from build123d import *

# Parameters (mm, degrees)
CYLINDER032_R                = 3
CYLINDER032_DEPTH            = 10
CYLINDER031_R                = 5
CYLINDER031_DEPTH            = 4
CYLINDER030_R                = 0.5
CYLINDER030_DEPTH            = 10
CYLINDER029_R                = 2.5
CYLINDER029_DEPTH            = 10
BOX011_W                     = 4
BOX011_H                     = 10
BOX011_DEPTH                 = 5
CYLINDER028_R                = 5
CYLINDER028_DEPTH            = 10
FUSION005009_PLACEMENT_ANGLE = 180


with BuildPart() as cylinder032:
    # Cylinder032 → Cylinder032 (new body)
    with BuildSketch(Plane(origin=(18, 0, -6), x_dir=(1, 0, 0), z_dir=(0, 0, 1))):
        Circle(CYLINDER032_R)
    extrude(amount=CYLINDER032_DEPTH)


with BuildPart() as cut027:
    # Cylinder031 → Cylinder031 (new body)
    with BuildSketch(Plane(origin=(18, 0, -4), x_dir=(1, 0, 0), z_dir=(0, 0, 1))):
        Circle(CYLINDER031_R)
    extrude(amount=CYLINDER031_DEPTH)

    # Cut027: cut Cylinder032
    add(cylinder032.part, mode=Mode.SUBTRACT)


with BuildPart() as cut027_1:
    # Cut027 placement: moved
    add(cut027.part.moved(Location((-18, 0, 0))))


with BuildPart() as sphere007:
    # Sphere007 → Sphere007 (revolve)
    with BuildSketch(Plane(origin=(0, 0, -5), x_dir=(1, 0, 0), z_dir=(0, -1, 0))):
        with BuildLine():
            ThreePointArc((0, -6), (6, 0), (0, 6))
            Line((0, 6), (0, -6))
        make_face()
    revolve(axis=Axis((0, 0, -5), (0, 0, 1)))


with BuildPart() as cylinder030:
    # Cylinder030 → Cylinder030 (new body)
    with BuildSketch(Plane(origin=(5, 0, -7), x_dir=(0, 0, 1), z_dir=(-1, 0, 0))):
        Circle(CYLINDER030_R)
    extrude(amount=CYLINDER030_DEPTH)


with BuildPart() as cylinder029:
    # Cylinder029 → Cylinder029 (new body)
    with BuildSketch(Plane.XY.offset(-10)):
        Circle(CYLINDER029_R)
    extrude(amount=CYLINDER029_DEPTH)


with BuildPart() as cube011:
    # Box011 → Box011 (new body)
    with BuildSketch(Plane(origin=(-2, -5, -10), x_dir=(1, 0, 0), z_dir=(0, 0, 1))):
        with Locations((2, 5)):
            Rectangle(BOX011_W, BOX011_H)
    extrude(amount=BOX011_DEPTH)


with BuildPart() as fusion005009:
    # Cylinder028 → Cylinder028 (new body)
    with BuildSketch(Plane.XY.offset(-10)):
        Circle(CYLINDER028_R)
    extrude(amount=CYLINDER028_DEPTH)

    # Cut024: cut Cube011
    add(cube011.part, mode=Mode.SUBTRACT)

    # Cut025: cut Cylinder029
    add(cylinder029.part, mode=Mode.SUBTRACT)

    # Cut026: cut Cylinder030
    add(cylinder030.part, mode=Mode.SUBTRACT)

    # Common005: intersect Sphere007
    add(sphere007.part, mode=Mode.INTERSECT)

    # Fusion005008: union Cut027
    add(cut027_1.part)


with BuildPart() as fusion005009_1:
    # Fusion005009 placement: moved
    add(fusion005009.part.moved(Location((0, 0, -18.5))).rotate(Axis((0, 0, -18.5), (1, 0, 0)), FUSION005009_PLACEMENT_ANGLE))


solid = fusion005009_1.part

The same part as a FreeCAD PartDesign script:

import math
import FreeCAD as App
import Part
import Sketcher
from FreeCAD import Vector

doc = App.newDocument("Part")
body = doc.addObject("PartDesign::Body", "Body")

sketch1 = doc.addObject("Sketcher::SketchObject", "Sketch")
body.addObject(sketch1)
sketch1.AttachmentSupport = (doc.XY_Plane, [""])
sketch1.MapMode = "FlatFace"
sketch1.AttachmentOffset = App.Placement(Vector(0, 0, -6), App.Rotation())
sketch1.addGeometry(Part.Circle(Vector(18, 0, 0), Vector(0, 0, 1), 3), False)
sketch1.addConstraint(Sketcher.Constraint("PointOnObject", 0, 3, -1))
sketch1.addConstraint(Sketcher.Constraint("Diameter", 0, 6.0))
sketch1.addConstraint(Sketcher.Constraint("DistanceX", -1, 1, 0, 3, 18.0))
pad1 = doc.addObject("PartDesign::Pad", "Pad")
body.addObject(pad1)
pad1.Profile = sketch1
pad1.Length = 10
body2 = doc.addObject("PartDesign::Body", "Body001")

sketch2 = doc.addObject("Sketcher::SketchObject", "Sketch001")
body2.addObject(sketch2)
sketch2.AttachmentSupport = (doc.getObject("XY_Plane001"), [""])
sketch2.MapMode = "FlatFace"
sketch2.AttachmentOffset = App.Placement(Vector(0, 0, -4), App.Rotation())
sketch2.addGeometry(Part.Circle(Vector(18, 0, 0), Vector(0, 0, 1), 5), False)
sketch2.addConstraint(Sketcher.Constraint("PointOnObject", 0, 3, -1))
sketch2.addConstraint(Sketcher.Constraint("Diameter", 0, 10.0))
sketch2.addConstraint(Sketcher.Constraint("DistanceX", -1, 1, 0, 3, 18.0))
pad2 = doc.addObject("PartDesign::Pad", "Pad001")
body2.addObject(pad2)
pad2.Profile = sketch2
pad2.Length = 4
doc.recompute()

boolean = doc.addObject("PartDesign::Boolean", "Boolean")
body2.addObject(boolean)
boolean.Type = "Cut"
boolean.addObjects([body])
body3 = doc.addObject("PartDesign::Body", "Body002")
doc.recompute()

body2.Placement = App.Placement(Vector(-18, 0, 0), App.Rotation(Vector(0, 0, 1), 0))
boolean2 = doc.addObject("PartDesign::Boolean", "Boolean001")
body3.addObject(boolean2)
boolean2.Type = "Fuse"
boolean2.addObjects([body2])
body4 = doc.addObject("PartDesign::Body", "Body003")

sketch3 = doc.addObject("Sketcher::SketchObject", "Sketch002")
body4.addObject(sketch3)
sketch3.AttachmentSupport = (doc.getObject("XZ_Plane003"), [""])
sketch3.MapMode = "FlatFace"
sketch3.addGeometry(Part.ArcOfCircle(Part.Circle(Vector(0, -5, 0), Vector(0, 0, 1), 6), math.radians(-90), math.radians(90)), False)
sketch3.addGeometry(Part.LineSegment(Vector(0, 1, 0), Vector(0, -11, 0)), False)
sketch3.addConstraint(Sketcher.Constraint("Coincident", 0, 1, 1, 2))
sketch3.addConstraint(Sketcher.Constraint("Coincident", 1, 1, 0, 2))
sketch3.addConstraint(Sketcher.Constraint("Vertical", 1))
sketch3.addConstraint(Sketcher.Constraint("PointOnObject", 0, 3, -2))
sketch3.addConstraint(Sketcher.Constraint("PointOnObject", 0, 1, -2))
sketch3.addConstraint(Sketcher.Constraint("Radius", 0, 6.0))
sketch3.addConstraint(Sketcher.Constraint("DistanceY", 0, 3, -1, 1, 5.0))
revolution = doc.addObject("PartDesign::Revolution", "Revolution")
body4.addObject(revolution)
revolution.Profile = sketch3
revolution.ReferenceAxis = (sketch3, ["V_Axis"])
revolution.Angle = 360
body5 = doc.addObject("PartDesign::Body", "Body004")

sketch4 = doc.addObject("Sketcher::SketchObject", "Sketch003")
body5.addObject(sketch4)
sketch4.AttachmentSupport = (doc.getObject("YZ_Plane004"), [""])
sketch4.MapMode = "FlatFace"
sketch4.AttachmentOffset = App.Placement(Vector(0, 0, 5), App.Rotation())
sketch4.addGeometry(Part.Circle(Vector(0, -7, 0), Vector(0, 0, 1), 0.5), False)
sketch4.addConstraint(Sketcher.Constraint("PointOnObject", 0, 3, -2))
sketch4.addConstraint(Sketcher.Constraint("Diameter", 0, 1.0))
sketch4.addConstraint(Sketcher.Constraint("DistanceY", 0, 3, -1, 1, 7.0))
pad3 = doc.addObject("PartDesign::Pad", "Pad002")
body5.addObject(pad3)
pad3.Profile = sketch4
pad3.Length = 10
pad3.Reversed = True
body6 = doc.addObject("PartDesign::Body", "Body005")

sketch5 = doc.addObject("Sketcher::SketchObject", "Sketch004")
body6.addObject(sketch5)
sketch5.AttachmentSupport = (doc.getObject("XY_Plane005"), [""])
sketch5.MapMode = "FlatFace"
sketch5.AttachmentOffset = App.Placement(Vector(0, 0, -10), App.Rotation())
sketch5.addGeometry(Part.Circle(Vector(0, 0, 0), Vector(0, 0, 1), 2.5), False)
sketch5.addConstraint(Sketcher.Constraint("Coincident", 0, 3, -1, 1))
sketch5.addConstraint(Sketcher.Constraint("Diameter", 0, 5.0))
pad4 = doc.addObject("PartDesign::Pad", "Pad003")
body6.addObject(pad4)
pad4.Profile = sketch5
pad4.Length = 10
body7 = doc.addObject("PartDesign::Body", "Body006")

sketch6 = doc.addObject("Sketcher::SketchObject", "Sketch005")
body7.addObject(sketch6)
sketch6.AttachmentSupport = (doc.getObject("XY_Plane006"), [""])
sketch6.MapMode = "FlatFace"
sketch6.AttachmentOffset = App.Placement(Vector(0, 0, -10), App.Rotation())
sketch6.addGeometry(Part.LineSegment(Vector(-2, 5, 0), Vector(-2, -5, 0)), False)
sketch6.addGeometry(Part.LineSegment(Vector(-2, -5, 0), Vector(2, -5, 0)), False)
sketch6.addGeometry(Part.LineSegment(Vector(2, -5, 0), Vector(2, 5, 0)), False)
sketch6.addGeometry(Part.LineSegment(Vector(2, 5, 0), Vector(-2, 5, 0)), False)
sketch6.addConstraint(Sketcher.Constraint("Coincident", 0, 2, 1, 1))
sketch6.addConstraint(Sketcher.Constraint("Coincident", 1, 2, 2, 1))
sketch6.addConstraint(Sketcher.Constraint("Coincident", 2, 2, 3, 1))
sketch6.addConstraint(Sketcher.Constraint("Coincident", 3, 2, 0, 1))
sketch6.addConstraint(Sketcher.Constraint("Vertical", 0))
sketch6.addConstraint(Sketcher.Constraint("Horizontal", 1))
sketch6.addConstraint(Sketcher.Constraint("Vertical", 2))
sketch6.addConstraint(Sketcher.Constraint("Horizontal", 3))
sketch6.addConstraint(Sketcher.Constraint("Symmetric", 0, 2, 2, 2, -1, 1))
sketch6.addConstraint(Sketcher.Constraint("DistanceX", 1, 1, 1, 2, 4.0))
sketch6.addConstraint(Sketcher.Constraint("DistanceY", 0, 2, 0, 1, 10.0))
pad5 = doc.addObject("PartDesign::Pad", "Pad004")
body7.addObject(pad5)
pad5.Profile = sketch6
pad5.Length = 5
body8 = doc.addObject("PartDesign::Body", "Body007")

sketch7 = doc.addObject("Sketcher::SketchObject", "Sketch006")
body8.addObject(sketch7)
sketch7.AttachmentSupport = (doc.getObject("XY_Plane007"), [""])
sketch7.MapMode = "FlatFace"
sketch7.AttachmentOffset = App.Placement(Vector(0, 0, -10), App.Rotation())
sketch7.addGeometry(Part.Circle(Vector(0, 0, 0), Vector(0, 0, 1), 5), False)
sketch7.addConstraint(Sketcher.Constraint("Coincident", 0, 3, -1, 1))
sketch7.addConstraint(Sketcher.Constraint("Diameter", 0, 10.0))
pad6 = doc.addObject("PartDesign::Pad", "Pad005")
body8.addObject(pad6)
pad6.Profile = sketch7
pad6.Length = 10
doc.recompute()

boolean3 = doc.addObject("PartDesign::Boolean", "Boolean002")
body8.addObject(boolean3)
boolean3.Type = "Cut"
boolean3.addObjects([body7])
doc.recompute()

boolean4 = doc.addObject("PartDesign::Boolean", "Boolean003")
body8.addObject(boolean4)
boolean4.Type = "Cut"
boolean4.addObjects([body6])
doc.recompute()

boolean5 = doc.addObject("PartDesign::Boolean", "Boolean004")
body8.addObject(boolean5)
boolean5.Type = "Cut"
boolean5.addObjects([body5])
doc.recompute()

boolean6 = doc.addObject("PartDesign::Boolean", "Boolean005")
body8.addObject(boolean6)
boolean6.Type = "Common"
boolean6.addObjects([body4])
doc.recompute()

boolean7 = doc.addObject("PartDesign::Boolean", "Boolean006")
body8.addObject(boolean7)
boolean7.Type = "Fuse"
boolean7.addObjects([body3])
body9 = doc.addObject("PartDesign::Body", "Body008")
doc.recompute()

body8.Placement = App.Placement(Vector(0, 0, -18.5), App.Rotation(Vector(1, 0, 0), 180))
boolean8 = doc.addObject("PartDesign::Boolean", "Boolean007")
body9.addObject(boolean8)
boolean8.Type = "Fuse"
boolean8.addObjects([body8])

doc.recompute()
